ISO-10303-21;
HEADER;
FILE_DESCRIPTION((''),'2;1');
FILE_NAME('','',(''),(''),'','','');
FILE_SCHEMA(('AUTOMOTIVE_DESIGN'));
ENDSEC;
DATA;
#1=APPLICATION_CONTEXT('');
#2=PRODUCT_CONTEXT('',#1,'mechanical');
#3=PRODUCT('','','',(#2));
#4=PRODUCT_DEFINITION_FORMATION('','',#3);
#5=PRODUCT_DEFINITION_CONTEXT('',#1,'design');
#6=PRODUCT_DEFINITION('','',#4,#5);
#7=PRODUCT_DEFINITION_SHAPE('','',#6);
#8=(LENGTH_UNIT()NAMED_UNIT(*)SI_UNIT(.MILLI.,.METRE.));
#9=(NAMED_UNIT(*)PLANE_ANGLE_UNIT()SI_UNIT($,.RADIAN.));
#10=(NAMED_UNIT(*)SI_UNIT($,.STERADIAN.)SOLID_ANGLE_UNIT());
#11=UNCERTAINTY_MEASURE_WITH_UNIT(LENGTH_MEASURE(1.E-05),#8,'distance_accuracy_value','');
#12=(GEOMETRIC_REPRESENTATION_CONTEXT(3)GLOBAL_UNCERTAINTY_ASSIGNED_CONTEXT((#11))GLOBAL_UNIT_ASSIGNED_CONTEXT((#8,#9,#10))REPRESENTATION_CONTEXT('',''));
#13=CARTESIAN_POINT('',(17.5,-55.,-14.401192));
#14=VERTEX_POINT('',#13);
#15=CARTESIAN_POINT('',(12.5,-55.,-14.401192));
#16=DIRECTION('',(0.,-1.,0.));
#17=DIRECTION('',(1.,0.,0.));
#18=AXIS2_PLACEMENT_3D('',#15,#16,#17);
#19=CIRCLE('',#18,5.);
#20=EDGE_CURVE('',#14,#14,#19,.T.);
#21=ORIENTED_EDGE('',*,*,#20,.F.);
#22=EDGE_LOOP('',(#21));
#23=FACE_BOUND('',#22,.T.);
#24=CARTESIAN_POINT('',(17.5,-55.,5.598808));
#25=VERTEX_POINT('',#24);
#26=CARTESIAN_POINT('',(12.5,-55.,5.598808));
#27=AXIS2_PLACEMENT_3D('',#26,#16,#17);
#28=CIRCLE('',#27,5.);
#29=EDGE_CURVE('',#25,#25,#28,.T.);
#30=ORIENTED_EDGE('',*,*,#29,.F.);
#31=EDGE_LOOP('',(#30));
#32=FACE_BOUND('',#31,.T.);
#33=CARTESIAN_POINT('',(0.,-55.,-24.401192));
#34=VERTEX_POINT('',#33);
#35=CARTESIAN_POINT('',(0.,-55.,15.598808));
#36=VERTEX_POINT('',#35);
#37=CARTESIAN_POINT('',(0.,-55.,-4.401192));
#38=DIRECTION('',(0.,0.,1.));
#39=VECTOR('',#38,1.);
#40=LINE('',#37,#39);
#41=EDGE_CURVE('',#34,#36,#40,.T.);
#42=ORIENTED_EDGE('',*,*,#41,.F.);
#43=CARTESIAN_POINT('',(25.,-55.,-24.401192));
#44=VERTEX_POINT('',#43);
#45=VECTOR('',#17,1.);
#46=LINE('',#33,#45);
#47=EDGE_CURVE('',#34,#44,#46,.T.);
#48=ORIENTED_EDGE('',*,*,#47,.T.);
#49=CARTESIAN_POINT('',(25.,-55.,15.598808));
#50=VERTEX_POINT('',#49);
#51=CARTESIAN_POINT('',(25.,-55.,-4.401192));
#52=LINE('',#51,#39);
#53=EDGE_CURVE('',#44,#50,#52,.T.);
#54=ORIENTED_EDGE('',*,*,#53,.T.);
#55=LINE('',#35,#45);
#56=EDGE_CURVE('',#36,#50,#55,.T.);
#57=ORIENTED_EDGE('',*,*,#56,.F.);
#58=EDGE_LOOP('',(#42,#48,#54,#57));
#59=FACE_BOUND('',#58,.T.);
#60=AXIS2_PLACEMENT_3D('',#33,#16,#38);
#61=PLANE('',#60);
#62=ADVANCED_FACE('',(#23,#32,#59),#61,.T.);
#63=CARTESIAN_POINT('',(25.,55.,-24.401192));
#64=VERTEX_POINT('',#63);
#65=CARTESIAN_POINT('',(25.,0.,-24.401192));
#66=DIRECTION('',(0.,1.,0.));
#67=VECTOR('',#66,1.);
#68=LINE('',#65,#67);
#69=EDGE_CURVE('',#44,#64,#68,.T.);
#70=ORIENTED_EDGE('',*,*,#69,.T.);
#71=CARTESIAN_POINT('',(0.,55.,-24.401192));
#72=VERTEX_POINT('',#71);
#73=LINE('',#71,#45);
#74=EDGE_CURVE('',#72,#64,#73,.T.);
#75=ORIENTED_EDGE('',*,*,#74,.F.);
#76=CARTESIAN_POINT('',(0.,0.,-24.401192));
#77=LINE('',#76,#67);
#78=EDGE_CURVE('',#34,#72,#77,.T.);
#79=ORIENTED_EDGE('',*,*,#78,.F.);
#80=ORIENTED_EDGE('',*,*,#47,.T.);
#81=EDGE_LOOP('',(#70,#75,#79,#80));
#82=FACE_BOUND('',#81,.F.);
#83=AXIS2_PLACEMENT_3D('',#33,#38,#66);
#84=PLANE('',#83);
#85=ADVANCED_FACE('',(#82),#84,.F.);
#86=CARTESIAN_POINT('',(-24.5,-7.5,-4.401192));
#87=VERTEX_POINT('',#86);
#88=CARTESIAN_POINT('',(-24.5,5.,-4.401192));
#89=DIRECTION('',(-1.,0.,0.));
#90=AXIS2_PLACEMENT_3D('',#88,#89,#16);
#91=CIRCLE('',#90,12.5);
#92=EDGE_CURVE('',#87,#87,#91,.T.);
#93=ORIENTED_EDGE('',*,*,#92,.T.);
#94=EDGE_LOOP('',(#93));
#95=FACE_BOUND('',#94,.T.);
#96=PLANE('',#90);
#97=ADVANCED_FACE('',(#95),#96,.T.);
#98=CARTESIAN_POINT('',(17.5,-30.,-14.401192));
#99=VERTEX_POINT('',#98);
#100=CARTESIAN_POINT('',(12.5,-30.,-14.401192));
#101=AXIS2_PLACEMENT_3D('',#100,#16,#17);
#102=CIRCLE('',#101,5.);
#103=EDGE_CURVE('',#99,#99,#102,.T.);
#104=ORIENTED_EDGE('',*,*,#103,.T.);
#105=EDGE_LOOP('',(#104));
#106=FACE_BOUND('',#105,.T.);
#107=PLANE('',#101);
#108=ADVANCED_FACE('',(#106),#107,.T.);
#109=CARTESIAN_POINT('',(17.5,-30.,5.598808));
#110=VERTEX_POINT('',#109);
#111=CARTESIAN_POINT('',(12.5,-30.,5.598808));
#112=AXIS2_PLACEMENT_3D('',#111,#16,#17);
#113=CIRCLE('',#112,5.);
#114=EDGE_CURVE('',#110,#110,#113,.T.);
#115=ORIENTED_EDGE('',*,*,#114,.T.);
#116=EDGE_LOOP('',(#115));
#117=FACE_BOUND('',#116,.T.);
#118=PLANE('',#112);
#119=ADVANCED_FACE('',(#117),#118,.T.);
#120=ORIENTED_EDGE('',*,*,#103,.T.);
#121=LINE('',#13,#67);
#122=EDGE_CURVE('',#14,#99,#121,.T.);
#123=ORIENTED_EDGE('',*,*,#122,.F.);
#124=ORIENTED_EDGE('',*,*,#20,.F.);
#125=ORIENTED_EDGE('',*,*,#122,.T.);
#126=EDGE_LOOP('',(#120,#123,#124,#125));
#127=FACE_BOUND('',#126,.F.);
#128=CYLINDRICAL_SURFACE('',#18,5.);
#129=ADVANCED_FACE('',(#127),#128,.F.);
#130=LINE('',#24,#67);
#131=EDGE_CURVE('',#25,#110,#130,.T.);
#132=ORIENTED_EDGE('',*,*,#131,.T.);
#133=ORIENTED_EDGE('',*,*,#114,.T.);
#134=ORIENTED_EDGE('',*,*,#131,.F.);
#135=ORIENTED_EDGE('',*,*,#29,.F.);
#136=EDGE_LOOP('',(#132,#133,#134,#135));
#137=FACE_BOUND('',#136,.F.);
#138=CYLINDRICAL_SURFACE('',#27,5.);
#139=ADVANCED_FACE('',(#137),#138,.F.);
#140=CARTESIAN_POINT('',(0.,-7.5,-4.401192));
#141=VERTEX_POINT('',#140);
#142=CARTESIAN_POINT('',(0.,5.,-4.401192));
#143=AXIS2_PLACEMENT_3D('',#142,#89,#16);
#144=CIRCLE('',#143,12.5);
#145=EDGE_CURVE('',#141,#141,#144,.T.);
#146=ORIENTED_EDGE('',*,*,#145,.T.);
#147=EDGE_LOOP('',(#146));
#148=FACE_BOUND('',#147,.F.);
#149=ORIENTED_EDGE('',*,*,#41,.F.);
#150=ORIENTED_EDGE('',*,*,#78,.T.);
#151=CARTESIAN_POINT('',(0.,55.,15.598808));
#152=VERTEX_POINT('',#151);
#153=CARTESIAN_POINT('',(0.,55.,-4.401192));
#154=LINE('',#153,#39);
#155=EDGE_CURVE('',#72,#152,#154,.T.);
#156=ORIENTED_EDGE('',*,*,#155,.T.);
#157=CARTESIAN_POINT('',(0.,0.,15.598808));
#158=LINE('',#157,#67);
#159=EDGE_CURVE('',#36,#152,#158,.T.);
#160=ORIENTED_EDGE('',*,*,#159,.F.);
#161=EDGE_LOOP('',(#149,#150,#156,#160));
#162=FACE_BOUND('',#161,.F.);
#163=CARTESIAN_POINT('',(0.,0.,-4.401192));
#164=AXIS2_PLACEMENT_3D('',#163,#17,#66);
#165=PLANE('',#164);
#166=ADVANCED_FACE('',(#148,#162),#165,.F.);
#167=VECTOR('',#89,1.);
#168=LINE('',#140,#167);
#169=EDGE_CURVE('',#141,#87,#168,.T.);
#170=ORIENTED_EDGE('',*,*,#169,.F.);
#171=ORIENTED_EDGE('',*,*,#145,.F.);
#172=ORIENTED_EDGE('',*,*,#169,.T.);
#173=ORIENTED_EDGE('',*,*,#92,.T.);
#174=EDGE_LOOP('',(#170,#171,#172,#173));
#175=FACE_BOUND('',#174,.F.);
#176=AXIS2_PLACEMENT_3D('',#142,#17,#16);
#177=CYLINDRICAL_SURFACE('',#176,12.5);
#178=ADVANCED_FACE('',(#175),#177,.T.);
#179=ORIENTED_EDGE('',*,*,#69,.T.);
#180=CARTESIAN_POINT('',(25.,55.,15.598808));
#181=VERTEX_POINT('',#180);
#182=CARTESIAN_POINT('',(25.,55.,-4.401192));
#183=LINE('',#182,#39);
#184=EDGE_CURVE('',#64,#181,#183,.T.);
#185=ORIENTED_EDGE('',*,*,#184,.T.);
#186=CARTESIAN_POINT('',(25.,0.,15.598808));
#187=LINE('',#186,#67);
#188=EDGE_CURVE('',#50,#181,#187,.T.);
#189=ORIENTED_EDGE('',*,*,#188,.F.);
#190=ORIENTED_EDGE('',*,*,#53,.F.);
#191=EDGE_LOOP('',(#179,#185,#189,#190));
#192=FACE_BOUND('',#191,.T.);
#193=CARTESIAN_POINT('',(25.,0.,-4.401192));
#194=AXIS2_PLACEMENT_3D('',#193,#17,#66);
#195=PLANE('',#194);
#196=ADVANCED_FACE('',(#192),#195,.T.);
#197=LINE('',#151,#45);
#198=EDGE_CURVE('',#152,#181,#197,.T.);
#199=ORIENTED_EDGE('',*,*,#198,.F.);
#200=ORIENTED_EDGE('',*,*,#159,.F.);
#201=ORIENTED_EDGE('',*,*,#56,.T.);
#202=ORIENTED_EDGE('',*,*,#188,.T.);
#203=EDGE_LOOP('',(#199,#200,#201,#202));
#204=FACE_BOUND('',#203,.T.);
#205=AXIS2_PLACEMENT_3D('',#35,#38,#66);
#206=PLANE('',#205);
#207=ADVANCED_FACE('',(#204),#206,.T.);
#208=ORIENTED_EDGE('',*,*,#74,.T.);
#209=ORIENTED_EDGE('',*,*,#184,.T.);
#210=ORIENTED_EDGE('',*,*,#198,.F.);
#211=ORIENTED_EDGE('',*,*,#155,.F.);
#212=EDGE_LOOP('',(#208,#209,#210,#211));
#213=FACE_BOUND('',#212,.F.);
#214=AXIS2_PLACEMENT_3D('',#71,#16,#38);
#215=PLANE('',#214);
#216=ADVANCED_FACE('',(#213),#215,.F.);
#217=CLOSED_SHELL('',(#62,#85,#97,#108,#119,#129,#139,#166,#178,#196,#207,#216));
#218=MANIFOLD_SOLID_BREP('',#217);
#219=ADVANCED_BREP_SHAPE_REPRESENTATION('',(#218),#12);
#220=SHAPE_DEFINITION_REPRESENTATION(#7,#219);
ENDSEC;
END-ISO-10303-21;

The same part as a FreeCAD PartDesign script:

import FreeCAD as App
import Part
import Sketcher

doc = App.newDocument("Part")
params = doc.addObject("Spreadsheet::Sheet", "Params")
for row, (alias, value) in enumerate([
    ("sketch1_width", "110 mm"),
    ("sketch1_height", "40 mm"),
    ("pad1_length", "25 mm"),
    ("sketch2_diameter", "25 mm"),
    ("pad2_length", "24.5 mm"),
    ("sketch3_diameter", "10 mm"),
    ("pocket1_length", "25 mm"),
    ("sketch4_diameter", "10 mm"),
    ("pocket2_length", "25 mm"),
], start=1):
    params.set(f"A{row}", alias)
    params.set(f"B{row}", "=" + value)
    params.setAlias(f"B{row}", alias)

body = doc.addObject("PartDesign::Body", "Body")

# Sketch on YZ plane
sketch1 = doc.addObject("Sketcher::SketchObject", "Sketch")
body.addObject(sketch1)
sketch1.AttachmentSupport = (doc.YZ_Plane, [""])
sketch1.MapMode = "FlatFace"
sketch1.addGeometry([
    Part.LineSegment(App.Vector(-55, 15.598808, 0), App.Vector(-55, -24.401192, 0)),
    Part.LineSegment(App.Vector(-55, -24.401192, 0), App.Vector(55, -24.401192, 0)),
    Part.LineSegment(App.Vector(55, -24.401192, 0), App.Vector(55, 15.598808, 0)),
    Part.LineSegment(App.Vector(55, 15.598808, 0), App.Vector(-55, 15.598808, 0)),
], False)
sketch1.addConstraint([
    Sketcher.Constraint("Coincident", 0, 2, 1, 1),
    Sketcher.Constraint("Coincident", 1, 2, 2, 1),
    Sketcher.Constraint("Coincident", 2, 2, 3, 1),
    Sketcher.Constraint("Coincident", 3, 2, 0, 1),
    Sketcher.Constraint("Vertical", 0),
    Sketcher.Constraint("Horizontal", 1),
    Sketcher.Constraint("Vertical", 2),
    Sketcher.Constraint("Horizontal", 3),
    Sketcher.Constraint("DistanceX", 1, 1, 1, 2, 110.0),
    Sketcher.Constraint("DistanceY", 0, 2, 0, 1, 40.0),
    Sketcher.Constraint("DistanceX", 0, 2, -1, 1, 55.0),
    Sketcher.Constraint("DistanceY", 0, 2, -1, 1, 24.401192),
])
sketch1.setExpression("Constraints[8]", "Params.sketch1_width")
sketch1.setExpression("Constraints[9]", "Params.sketch1_height")
pad1 = doc.addObject("PartDesign::Pad", "Pad")
body.addObject(pad1)
pad1.Profile = sketch1
pad1.setExpression("Length", "Params.pad1_length")

# Sketch on YZ plane
sketch2 = doc.addObject("Sketcher::SketchObject", "Sketch001")
body.addObject(sketch2)
sketch2.AttachmentSupport = (doc.YZ_Plane, [""])
sketch2.MapMode = "FlatFace"
sketch2.addGeometry(Part.Circle(App.Vector(5, -4.401192, 0), App.Vector(0, 0, 1), 12.5), False)
sketch2.addConstraint([
    Sketcher.Constraint("Diameter", 0, 25.0),
    Sketcher.Constraint("DistanceX", -1, 1, 0, 3, 5.0),
    Sketcher.Constraint("DistanceY", 0, 3, -1, 1, 4.401192),
])
sketch2.setExpression("Constraints[0]", "Params.sketch2_diameter")
pad2 = doc.addObject("PartDesign::Pad", "Pad001")
body.addObject(pad2)
pad2.Profile = sketch2
pad2.setExpression("Length", "Params.pad2_length")
pad2.Reversed = True

# Sketch on XZ plane
sketch3 = doc.addObject("Sketcher::SketchObject", "Sketch002")
body.addObject(sketch3)
sketch3.AttachmentSupport = (doc.XZ_Plane, [""])
sketch3.MapMode = "FlatFace"
sketch3.AttachmentOffset = App.Placement(App.Vector(0, 0, 55), App.Rotation())
sketch3.addGeometry(Part.Circle(App.Vector(12.5, 5.598808, 0), App.Vector(0, 0, 1), 5), False)
sketch3.addConstraint([
    Sketcher.Constraint("Diameter", 0, 10.0),
    Sketcher.Constraint("DistanceX", -1, 1, 0, 3, 12.5),
    Sketcher.Constraint("DistanceY", -1, 1, 0, 3, 5.598808),
])
sketch3.setExpression("Constraints[0]", "Params.sketch3_diameter")
pocket1 = doc.addObject("PartDesign::Pocket", "Pocket")
body.addObject(pocket1)
pocket1.Profile = sketch3
pocket1.setExpression("Length", "Params.pocket1_length")

# Sketch on XZ plane
sketch4 = doc.addObject("Sketcher::SketchObject", "Sketch003")
body.addObject(sketch4)
sketch4.AttachmentSupport = (doc.XZ_Plane, [""])
sketch4.MapMode = "FlatFace"
sketch4.AttachmentOffset = App.Placement(App.Vector(0, 0, 55), App.Rotation())
sketch4.addGeometry([
    Part.Circle(App.Vector(12.5, 5.598808, 0), App.Vector(0, 0, 1), 5),
    Part.Circle(App.Vector(12.5, -14.401192, 0), App.Vector(0, 0, 1), 5),
], False)
sketch4.addConstraint([
    Sketcher.Constraint("Equal", 0, 1),
    Sketcher.Constraint("Vertical", 0, 3, 1, 3),
    Sketcher.Constraint("Diameter", 0, 10.0),
    Sketcher.Constraint("DistanceY", 1, 3, 0, 3, 20.0),
    Sketcher.Constraint("DistanceX", -1, 1, 0, 3, 12.5),
    Sketcher.Constraint("DistanceY", -1, 1, 0, 3, 5.598808),
])
sketch4.setExpression("Constraints[2]", "Params.sketch4_diameter")
pocket2 = doc.addObject("PartDesign::Pocket", "Pocket001")
body.addObject(pocket2)
pocket2.Profile = sketch4
pocket2.setExpression("Length", "Params.pocket2_length")

doc.recompute()
